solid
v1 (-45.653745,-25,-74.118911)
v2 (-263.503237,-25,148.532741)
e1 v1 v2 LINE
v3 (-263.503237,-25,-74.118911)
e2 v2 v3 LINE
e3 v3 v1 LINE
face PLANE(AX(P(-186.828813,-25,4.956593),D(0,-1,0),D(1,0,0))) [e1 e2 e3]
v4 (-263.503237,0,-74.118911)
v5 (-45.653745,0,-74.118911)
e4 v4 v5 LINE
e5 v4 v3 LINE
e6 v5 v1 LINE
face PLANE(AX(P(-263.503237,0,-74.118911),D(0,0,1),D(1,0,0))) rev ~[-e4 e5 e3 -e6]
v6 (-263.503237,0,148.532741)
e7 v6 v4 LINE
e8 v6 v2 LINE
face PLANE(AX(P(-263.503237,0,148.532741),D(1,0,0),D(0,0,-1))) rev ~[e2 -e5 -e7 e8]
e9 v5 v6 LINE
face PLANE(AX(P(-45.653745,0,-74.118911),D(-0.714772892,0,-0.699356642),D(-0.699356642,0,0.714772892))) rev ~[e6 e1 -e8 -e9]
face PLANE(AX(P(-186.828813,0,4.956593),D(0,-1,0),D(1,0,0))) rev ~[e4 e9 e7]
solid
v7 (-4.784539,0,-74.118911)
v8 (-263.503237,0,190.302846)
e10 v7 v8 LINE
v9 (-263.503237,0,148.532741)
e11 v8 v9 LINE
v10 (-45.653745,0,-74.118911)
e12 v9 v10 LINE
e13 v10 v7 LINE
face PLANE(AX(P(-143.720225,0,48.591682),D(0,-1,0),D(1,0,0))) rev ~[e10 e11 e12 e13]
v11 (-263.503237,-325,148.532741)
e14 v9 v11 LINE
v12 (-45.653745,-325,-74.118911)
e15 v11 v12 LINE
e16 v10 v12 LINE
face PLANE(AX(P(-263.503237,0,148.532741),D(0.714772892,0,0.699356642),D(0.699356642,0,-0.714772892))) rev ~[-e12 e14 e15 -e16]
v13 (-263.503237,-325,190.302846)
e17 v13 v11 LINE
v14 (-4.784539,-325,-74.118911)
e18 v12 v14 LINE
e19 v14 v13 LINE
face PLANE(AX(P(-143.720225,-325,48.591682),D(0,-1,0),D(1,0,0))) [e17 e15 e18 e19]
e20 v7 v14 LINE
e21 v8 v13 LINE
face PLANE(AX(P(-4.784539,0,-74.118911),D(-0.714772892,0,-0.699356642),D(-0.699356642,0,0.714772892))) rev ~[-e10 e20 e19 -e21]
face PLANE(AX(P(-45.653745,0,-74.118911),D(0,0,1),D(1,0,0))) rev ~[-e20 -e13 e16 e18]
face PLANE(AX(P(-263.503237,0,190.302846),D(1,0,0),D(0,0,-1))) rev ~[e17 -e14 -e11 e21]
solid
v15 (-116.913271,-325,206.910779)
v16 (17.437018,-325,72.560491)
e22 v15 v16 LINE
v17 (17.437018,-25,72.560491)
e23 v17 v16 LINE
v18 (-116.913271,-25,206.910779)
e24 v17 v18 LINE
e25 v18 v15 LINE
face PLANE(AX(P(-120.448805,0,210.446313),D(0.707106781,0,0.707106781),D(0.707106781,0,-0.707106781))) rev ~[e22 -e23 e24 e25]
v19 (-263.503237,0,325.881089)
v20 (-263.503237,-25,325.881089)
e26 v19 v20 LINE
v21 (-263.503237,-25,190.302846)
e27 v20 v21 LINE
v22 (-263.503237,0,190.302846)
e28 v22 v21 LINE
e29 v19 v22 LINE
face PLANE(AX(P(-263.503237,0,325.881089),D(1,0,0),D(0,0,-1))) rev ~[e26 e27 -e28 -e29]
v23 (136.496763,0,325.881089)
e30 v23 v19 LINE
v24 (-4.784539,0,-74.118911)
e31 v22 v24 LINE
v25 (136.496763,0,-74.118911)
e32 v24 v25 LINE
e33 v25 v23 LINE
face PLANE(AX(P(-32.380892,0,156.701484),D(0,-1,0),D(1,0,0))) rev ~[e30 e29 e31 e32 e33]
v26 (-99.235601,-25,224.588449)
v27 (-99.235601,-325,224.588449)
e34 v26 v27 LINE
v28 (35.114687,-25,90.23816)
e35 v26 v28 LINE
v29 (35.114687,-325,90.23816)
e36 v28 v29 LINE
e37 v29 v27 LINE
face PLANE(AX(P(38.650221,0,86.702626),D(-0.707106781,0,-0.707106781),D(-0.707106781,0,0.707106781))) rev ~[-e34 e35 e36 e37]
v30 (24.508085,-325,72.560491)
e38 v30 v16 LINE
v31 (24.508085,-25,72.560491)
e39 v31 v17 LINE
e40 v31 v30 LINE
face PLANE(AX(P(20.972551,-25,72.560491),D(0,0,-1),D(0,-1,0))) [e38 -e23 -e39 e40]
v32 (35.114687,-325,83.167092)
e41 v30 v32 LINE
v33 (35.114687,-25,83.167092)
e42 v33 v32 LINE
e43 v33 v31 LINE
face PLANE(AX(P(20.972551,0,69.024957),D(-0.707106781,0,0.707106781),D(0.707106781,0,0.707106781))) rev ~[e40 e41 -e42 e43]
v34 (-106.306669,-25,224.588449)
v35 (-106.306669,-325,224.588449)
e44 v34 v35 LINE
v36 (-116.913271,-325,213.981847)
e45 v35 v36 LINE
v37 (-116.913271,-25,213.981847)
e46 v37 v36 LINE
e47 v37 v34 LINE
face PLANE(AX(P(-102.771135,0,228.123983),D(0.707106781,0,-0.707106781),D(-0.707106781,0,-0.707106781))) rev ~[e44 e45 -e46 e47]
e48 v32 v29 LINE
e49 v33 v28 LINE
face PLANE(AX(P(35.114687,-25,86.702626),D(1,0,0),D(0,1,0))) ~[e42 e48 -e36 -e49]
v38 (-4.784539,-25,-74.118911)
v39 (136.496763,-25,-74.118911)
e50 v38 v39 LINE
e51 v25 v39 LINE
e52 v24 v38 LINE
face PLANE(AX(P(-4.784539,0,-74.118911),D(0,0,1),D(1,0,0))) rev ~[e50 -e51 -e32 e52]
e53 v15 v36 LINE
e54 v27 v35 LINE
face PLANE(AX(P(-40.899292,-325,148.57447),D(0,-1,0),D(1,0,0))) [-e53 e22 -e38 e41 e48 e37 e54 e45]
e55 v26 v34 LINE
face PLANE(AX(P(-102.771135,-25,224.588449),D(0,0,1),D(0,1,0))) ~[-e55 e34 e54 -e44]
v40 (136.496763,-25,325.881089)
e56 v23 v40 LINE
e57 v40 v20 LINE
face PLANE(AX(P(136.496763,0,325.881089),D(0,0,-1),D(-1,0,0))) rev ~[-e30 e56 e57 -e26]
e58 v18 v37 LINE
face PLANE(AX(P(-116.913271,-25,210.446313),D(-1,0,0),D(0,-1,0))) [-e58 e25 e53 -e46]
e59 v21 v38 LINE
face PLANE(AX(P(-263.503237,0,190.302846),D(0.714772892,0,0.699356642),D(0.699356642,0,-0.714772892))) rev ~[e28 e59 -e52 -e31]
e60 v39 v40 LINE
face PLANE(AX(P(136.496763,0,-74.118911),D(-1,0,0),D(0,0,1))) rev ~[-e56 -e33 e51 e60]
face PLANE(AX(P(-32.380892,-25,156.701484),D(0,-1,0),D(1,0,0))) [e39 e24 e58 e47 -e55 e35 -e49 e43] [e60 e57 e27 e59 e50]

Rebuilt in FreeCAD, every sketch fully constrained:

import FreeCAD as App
import Part
import Sketcher

V = App.Vector
Q = App.Units.Quantity


def edges_at(feature, points):
    """Names of the edges that pass closest to the given points."""
    edges = feature.Shape.Edges
    near = lambda p: min(range(len(edges)), key=lambda i: edges[i].distToShape(Part.Vertex(*p))[0])
    return sorted({f"Edge{near(p) + 1}" for p in points})


def add_polygon(sketch, points):
    """Adds a closed chain of lines whose ends are joined by coincident constraints."""
    first, n = sketch.GeometryCount, len(points)
    for a, b in zip(points, points[1:] + points[:1]):
        sketch.addGeometry(Part.LineSegment(App.Vector(*a, 0), App.Vector(*b, 0)), False)
    for i in range(n):
        sketch.addConstraint(Sketcher.Constraint("Coincident", first + i, 2, first + (i + 1) % n, 1))

doc = App.newDocument("Part")
body = doc.addObject("PartDesign::Body", "Body")

# Sketch on XZ plane
sketch1 = body.newObject("Sketcher::SketchObject", "Sketch")
sketch1.AttachmentSupport = (doc.getObject("XZ_Plane"), [""])
sketch1.MapMode = "FlatFace"
add_polygon(sketch1, [(136, 326), (-264, 326), (-264, 190), (-5, -74), (136, -74)])  # lines 0-4
add_polygon(sketch1, [(-120, 210), (-103, 228), (39, 87), (21, 69)])  # lines 5-8
sketch1.addConstraint([
    Sketcher.Constraint("Horizontal", 0),
    Sketcher.Constraint("Vertical", 1),
    Sketcher.Constraint("Horizontal", 3),
    Sketcher.Constraint("Vertical", 4),
    Sketcher.Constraint("Perpendicular", 5, 6),
    Sketcher.Constraint("Perpendicular", 6, 7),
    Sketcher.Constraint("Perpendicular", 7, 8),
    Sketcher.Constraint("Equal", 0, 4),
    Sketcher.Constraint("DistanceX", 0, 2, 0, 1, 400.0),
    Sketcher.Constraint("Angle", 5, Q("45 deg")),
    Sketcher.Constraint("Distance", 5, 25.0),
    Sketcher.Constraint("Distance", 6, 200.0),
    Sketcher.Constraint("DistanceX", 1, 2, 5, 2, 160.732102),
    Sketcher.Constraint("DistanceX", 3, 1, 3, 2, 141.281302),
    Sketcher.Constraint("DistanceY", 1, 2, 1, 1, 135.578243),
    Sketcher.Constraint("DistanceY", -1, 1, 0, 2, 325.881089),
    Sketcher.Constraint("DistanceX", 2, 2, -1, 1, 4.784539),
    Sketcher.Constraint("DistanceY", 6, 2, 1, 2, 103.60022),
])
pad1 = body.newObject("PartDesign::Pad", "Pad")
pad1.Profile = sketch1
pad1.Length = 25

# Sketch on XZ plane
sketch2 = body.newObject("Sketcher::SketchObject", "Sketch001")
sketch2.AttachmentSupport = (doc.getObject("XZ_Plane"), [""])
sketch2.MapMode = "FlatFace"
add_polygon(sketch2, [(21, 69), (39, 87), (-103, 228), (-120, 210)])  # lines 0-3
sketch2.addConstraint([
    Sketcher.Constraint("Perpendicular", 0, 1),
    Sketcher.Constraint("Perpendicular", 1, 2),
    Sketcher.Constraint("Perpendicular", 2, 3),
    Sketcher.Constraint("Angle", 0, Q("45 deg")),
    Sketcher.Constraint("Distance", 0, 25.0),
    Sketcher.Constraint("Distance", 1, 200.0),
    Sketcher.Constraint("DistanceX", -1, 1, 0, 2, 38.650221),
    Sketcher.Constraint("DistanceY", -1, 1, 0, 2, 86.702626),
])
pad2 = body.newObject("PartDesign::Pad", "Pad001")
pad2.Profile = sketch2
pad2.Length = 325
doc.recompute()

chamfer = body.newObject("PartDesign::Chamfer", "Chamfer")
chamfer.Base = (pad2, edges_at(pad2, [
    (38.65, -175, 86.703),
    (20.973, -175, 69.025),
    (-102.771, -175, 228.124),
    (-120.449, -175, 210.446),
]))
chamfer.Size = 5
body2 = doc.addObject("PartDesign::Body", "Body001")

# Sketch on XZ plane
sketch3 = body2.newObject("Sketcher::SketchObject", "Sketch002")
sketch3.AttachmentSupport = (doc.getObject("XZ_Plane001"), [""])
sketch3.MapMode = "FlatFace"
add_polygon(sketch3, [(-264, 149), (-264, -74), (-46, -74)])  # lines 0-2
sketch3.addConstraint([
    Sketcher.Constraint("Vertical", 0),
    Sketcher.Constraint("Horizontal", 1),
    Sketcher.Constraint("DistanceX", 1, 1, 1, 2, 217.849491),
    Sketcher.Constraint("DistanceY", 0, 2, 0, 1, 222.651651),
    Sketcher.Constraint("DistanceY", 0, 2, -1, 1, 74.118911),
    Sketcher.Constraint("DistanceX", 0, 2, -1, 1, 263.503237),
])
pad3 = body2.newObject("PartDesign::Pad", "Pad002")
pad3.Profile = sketch3
pad3.Length = 25
body3 = doc.addObject("PartDesign::Body", "Body002")

# Sketch on XZ plane
sketch4 = body3.newObject("Sketcher::SketchObject", "Sketch003")
sketch4.AttachmentSupport = (doc.getObject("XZ_Plane002"), [""])
sketch4.MapMode = "FlatFace"
add_polygon(sketch4, [(-5, -74), (-264, 190), (-264, 149), (-46, -74)])  # lines 0-3
sketch4.addConstraint([
    Sketcher.Constraint("Vertical", 1),
    Sketcher.Constraint("Horizontal", 3),
    Sketcher.Constraint("Parallel", 0, 2),
    Sketcher.Constraint("DistanceX", 3, 1, 3, 2, 40.869206),
    Sketcher.Constraint("DistanceY", 1, 2, 1, 1, 41.770106),
    Sketcher.Constraint("DistanceY", -1, 1, 1, 2, 148.532741),
    Sketcher.Constraint("DistanceY", 2, 2, -1, 1, 74.118911),
    Sketcher.Constraint("DistanceX", 3, 2, -1, 1, 4.784539),
])
pad4 = body3.newObject("PartDesign::Pad", "Pad003")
pad4.Profile = sketch4
pad4.Length = 325

doc.recompute()
